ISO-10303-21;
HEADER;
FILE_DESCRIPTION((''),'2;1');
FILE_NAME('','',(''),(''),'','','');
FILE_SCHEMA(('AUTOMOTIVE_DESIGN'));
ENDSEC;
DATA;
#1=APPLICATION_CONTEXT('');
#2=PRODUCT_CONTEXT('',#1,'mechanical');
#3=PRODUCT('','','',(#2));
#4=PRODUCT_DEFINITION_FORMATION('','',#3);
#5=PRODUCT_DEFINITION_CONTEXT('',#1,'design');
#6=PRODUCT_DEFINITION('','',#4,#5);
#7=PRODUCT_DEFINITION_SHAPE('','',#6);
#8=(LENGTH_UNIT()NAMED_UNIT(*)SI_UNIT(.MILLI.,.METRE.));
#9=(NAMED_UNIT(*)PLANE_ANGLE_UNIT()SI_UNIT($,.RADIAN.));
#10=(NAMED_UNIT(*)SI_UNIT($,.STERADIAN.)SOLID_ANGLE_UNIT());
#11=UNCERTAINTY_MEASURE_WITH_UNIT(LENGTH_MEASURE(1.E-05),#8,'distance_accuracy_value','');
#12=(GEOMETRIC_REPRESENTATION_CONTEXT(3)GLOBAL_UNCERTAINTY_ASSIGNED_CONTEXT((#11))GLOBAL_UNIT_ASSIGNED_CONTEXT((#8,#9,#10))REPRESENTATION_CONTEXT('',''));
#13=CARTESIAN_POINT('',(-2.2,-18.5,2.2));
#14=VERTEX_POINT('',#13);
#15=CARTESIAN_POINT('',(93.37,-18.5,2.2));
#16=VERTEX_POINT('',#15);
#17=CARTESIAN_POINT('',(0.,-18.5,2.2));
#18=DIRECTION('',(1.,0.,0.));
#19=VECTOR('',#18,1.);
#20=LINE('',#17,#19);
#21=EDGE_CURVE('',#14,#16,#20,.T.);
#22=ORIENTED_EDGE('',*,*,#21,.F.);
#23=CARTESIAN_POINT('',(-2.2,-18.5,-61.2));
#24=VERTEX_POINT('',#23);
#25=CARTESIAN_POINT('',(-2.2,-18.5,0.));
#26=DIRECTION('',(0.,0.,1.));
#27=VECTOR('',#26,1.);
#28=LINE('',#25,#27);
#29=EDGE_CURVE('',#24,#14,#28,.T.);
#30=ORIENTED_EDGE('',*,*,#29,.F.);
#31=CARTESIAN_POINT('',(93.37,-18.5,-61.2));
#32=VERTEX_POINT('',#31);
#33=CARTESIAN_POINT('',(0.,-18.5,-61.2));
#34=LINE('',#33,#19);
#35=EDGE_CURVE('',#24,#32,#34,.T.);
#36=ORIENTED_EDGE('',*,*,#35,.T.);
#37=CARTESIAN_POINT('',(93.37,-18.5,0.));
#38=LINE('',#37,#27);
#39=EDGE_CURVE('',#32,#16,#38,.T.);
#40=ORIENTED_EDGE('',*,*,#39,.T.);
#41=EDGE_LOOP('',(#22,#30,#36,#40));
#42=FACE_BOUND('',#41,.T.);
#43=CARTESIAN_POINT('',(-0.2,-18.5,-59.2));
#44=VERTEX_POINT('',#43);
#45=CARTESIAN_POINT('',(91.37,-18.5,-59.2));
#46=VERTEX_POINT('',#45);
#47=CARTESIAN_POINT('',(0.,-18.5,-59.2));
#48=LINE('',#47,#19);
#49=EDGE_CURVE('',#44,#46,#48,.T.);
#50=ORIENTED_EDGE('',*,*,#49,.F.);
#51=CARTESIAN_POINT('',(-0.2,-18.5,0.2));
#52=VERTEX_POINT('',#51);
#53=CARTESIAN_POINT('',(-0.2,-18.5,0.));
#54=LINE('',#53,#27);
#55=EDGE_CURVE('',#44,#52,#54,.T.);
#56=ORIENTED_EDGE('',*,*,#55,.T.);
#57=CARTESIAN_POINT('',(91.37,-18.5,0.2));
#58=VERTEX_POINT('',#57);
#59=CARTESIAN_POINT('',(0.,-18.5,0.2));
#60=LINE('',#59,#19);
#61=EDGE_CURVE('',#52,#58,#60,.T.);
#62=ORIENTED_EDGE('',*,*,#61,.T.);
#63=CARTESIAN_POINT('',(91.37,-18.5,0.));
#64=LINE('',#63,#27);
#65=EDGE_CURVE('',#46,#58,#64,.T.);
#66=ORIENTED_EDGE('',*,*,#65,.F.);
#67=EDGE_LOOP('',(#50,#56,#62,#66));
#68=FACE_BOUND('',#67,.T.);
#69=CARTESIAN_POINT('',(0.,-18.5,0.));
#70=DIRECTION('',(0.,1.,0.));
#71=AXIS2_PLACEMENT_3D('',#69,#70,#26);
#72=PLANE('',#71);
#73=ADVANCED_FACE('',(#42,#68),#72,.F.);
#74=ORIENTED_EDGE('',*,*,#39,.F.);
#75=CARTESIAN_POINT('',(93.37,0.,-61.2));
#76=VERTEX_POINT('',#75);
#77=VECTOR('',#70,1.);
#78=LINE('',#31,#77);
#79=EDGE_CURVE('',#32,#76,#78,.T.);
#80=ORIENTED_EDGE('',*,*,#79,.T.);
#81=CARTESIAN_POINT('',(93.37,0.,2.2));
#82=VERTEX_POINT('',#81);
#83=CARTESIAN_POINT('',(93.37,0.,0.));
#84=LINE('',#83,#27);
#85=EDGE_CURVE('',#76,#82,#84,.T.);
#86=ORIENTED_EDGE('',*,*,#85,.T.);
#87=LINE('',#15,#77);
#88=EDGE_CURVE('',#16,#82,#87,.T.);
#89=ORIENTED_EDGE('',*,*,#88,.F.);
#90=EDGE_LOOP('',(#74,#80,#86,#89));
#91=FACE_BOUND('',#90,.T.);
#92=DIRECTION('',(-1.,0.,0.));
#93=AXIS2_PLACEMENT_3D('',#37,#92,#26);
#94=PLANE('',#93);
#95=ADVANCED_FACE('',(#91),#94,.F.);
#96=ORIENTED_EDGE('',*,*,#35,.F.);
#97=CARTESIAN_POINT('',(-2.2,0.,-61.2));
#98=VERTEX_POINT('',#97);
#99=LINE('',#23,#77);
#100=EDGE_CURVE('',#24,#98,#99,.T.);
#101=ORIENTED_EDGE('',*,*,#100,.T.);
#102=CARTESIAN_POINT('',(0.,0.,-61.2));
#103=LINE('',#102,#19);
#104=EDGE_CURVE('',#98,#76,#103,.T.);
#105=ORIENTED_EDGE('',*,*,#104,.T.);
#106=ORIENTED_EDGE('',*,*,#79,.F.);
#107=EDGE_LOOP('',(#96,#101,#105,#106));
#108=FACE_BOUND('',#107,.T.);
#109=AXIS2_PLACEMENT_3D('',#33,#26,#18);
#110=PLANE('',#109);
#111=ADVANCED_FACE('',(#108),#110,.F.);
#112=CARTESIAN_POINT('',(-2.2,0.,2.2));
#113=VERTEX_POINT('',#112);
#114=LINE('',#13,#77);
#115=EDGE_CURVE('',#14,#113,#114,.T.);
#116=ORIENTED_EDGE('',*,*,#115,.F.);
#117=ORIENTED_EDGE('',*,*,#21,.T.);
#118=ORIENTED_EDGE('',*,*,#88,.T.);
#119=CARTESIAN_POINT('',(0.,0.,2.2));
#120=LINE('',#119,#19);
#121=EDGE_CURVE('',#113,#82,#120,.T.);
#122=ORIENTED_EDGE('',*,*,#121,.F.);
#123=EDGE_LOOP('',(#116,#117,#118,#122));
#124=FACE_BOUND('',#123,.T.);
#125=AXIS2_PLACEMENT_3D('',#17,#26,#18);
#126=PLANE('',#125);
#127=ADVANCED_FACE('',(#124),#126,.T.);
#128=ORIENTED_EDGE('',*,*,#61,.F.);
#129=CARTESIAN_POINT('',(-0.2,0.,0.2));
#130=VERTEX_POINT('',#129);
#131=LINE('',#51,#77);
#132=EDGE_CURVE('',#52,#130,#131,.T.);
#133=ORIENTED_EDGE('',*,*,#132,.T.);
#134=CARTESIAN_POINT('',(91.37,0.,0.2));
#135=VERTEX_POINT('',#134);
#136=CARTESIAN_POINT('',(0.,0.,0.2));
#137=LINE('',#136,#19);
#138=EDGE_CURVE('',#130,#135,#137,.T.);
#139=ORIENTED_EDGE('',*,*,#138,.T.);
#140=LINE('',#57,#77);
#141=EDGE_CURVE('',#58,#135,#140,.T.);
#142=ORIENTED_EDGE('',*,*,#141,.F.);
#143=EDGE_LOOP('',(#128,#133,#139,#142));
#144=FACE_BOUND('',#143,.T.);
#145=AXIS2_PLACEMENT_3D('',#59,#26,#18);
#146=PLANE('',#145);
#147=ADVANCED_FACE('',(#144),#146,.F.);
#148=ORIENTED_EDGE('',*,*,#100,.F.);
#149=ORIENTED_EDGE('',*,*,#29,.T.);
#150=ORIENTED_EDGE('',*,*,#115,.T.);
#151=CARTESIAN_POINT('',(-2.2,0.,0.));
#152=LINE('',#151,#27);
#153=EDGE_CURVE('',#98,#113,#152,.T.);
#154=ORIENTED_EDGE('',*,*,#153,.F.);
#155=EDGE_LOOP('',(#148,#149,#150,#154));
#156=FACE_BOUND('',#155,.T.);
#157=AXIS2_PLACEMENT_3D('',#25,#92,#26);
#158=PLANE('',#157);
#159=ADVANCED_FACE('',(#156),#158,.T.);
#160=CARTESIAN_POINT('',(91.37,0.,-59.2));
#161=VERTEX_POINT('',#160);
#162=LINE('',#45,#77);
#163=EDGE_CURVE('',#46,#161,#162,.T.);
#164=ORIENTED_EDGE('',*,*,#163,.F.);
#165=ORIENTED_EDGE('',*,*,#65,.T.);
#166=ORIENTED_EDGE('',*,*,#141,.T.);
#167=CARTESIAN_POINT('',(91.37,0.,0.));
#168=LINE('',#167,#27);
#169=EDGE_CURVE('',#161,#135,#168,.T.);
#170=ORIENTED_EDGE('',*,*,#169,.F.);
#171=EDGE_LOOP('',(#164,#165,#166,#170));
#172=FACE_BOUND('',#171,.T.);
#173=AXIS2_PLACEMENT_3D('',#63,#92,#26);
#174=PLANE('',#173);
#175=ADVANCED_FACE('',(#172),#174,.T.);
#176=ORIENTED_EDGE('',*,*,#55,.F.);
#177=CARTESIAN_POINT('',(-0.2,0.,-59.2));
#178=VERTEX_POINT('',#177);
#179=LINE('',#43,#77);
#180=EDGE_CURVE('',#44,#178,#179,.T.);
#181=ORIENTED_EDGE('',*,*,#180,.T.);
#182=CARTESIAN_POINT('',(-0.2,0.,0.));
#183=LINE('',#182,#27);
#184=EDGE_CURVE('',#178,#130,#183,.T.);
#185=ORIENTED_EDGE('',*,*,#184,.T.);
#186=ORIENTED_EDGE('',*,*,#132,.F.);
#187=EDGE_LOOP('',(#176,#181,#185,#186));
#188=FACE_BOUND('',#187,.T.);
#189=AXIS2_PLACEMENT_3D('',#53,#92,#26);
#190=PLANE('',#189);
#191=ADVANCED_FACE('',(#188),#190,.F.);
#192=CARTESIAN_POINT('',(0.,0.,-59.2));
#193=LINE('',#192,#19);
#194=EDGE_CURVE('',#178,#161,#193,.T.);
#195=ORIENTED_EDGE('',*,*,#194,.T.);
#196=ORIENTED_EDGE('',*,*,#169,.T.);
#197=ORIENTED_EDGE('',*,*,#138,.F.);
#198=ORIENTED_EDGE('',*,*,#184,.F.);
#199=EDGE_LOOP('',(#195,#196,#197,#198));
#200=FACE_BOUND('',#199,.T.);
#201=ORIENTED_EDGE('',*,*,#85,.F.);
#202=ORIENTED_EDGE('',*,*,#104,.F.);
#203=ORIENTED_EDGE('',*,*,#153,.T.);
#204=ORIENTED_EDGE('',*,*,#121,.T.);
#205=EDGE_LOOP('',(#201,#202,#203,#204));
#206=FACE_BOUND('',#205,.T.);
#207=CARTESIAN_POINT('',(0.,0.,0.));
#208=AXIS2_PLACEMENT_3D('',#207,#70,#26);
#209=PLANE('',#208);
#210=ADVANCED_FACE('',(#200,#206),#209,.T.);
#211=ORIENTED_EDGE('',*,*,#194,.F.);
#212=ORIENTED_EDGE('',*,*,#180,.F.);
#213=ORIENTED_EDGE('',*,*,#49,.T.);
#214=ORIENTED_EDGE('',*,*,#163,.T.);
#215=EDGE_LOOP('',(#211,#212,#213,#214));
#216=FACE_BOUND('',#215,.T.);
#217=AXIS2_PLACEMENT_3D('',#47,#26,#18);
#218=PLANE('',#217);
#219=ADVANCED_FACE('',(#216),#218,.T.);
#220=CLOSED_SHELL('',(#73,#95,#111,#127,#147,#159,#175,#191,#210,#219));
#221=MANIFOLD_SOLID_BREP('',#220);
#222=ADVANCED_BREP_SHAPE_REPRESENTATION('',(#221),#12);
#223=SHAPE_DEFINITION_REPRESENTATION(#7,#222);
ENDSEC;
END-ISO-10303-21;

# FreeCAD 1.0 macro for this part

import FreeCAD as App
import Part
import Sketcher
from FreeCAD import Vector


def add_polygon(sketch, points):
    """Adds a closed chain of lines whose ends are joined by coincident constraints."""
    first, n = sketch.GeometryCount, len(points)
    for a, b in zip(points, points[1:] + points[:1]):
        sketch.addGeometry(Part.LineSegment(App.Vector(*a, 0), App.Vector(*b, 0)), False)
    for i in range(n):
        sketch.addConstraint(Sketcher.Constraint("Coincident", first + i, 2, first + (i + 1) % n, 1))

doc = App.newDocument("Part")
body = doc.addObject("PartDesign::Body", "Body")

# Sketch on XZ plane
sketch1 = body.newObject("Sketcher::SketchObject", "Sketch")
sketch1.AttachmentSupport = (doc.getObject("XZ_Plane"), [""])
sketch1.MapMode = "FlatFace"
add_polygon(sketch1, [(-2.2, 2.2), (93.37, 2.2), (93.37, -61.2), (-2.2, -61.2)])  # lines 0-3
add_polygon(sketch1, [(-0.2, 0.2), (-0.2, -59.2), (91.37, -59.2), (91.37, 0.2)])  # lines 4-7
sketch1.addConstraint([
    Sketcher.Constraint("Horizontal", 0),
    Sketcher.Constraint("Vertical", 1),
    Sketcher.Constraint("Horizontal", 2),
    Sketcher.Constraint("Vertical", 3),
    Sketcher.Constraint("Vertical", 4),
    Sketcher.Constraint("Horizontal", 5),
    Sketcher.Constraint("Vertical", 6),
    Sketcher.Constraint("Horizontal", 7),
    Sketcher.Constraint("DistanceY", 1, 2, 1, 1, 63.4),
    Sketcher.Constraint("DistanceY", 4, 2, 4, 1, 59.4),
    Sketcher.Constraint("DistanceX", 2, 2, 4, 2, 2.0),
    Sketcher.Constraint("DistanceY", 2, 2, 4, 2, 2.0),
    Sketcher.Constraint("DistanceX", 5, 2, 1, 2, 2.0),
    Sketcher.Constraint("DistanceX", 0, 1, 0, 2, 95.57),
    Sketcher.Constraint("DistanceY", -1, 1, 0, 2, 2.2),
    Sketcher.Constraint("DistanceX", 2, 2, -1, 1, 2.2),
])
pad1 = body.newObject("PartDesign::Pad", "Pad")
pad1.Profile = sketch1
pad1.Length = 18.5

doc.recompute()
